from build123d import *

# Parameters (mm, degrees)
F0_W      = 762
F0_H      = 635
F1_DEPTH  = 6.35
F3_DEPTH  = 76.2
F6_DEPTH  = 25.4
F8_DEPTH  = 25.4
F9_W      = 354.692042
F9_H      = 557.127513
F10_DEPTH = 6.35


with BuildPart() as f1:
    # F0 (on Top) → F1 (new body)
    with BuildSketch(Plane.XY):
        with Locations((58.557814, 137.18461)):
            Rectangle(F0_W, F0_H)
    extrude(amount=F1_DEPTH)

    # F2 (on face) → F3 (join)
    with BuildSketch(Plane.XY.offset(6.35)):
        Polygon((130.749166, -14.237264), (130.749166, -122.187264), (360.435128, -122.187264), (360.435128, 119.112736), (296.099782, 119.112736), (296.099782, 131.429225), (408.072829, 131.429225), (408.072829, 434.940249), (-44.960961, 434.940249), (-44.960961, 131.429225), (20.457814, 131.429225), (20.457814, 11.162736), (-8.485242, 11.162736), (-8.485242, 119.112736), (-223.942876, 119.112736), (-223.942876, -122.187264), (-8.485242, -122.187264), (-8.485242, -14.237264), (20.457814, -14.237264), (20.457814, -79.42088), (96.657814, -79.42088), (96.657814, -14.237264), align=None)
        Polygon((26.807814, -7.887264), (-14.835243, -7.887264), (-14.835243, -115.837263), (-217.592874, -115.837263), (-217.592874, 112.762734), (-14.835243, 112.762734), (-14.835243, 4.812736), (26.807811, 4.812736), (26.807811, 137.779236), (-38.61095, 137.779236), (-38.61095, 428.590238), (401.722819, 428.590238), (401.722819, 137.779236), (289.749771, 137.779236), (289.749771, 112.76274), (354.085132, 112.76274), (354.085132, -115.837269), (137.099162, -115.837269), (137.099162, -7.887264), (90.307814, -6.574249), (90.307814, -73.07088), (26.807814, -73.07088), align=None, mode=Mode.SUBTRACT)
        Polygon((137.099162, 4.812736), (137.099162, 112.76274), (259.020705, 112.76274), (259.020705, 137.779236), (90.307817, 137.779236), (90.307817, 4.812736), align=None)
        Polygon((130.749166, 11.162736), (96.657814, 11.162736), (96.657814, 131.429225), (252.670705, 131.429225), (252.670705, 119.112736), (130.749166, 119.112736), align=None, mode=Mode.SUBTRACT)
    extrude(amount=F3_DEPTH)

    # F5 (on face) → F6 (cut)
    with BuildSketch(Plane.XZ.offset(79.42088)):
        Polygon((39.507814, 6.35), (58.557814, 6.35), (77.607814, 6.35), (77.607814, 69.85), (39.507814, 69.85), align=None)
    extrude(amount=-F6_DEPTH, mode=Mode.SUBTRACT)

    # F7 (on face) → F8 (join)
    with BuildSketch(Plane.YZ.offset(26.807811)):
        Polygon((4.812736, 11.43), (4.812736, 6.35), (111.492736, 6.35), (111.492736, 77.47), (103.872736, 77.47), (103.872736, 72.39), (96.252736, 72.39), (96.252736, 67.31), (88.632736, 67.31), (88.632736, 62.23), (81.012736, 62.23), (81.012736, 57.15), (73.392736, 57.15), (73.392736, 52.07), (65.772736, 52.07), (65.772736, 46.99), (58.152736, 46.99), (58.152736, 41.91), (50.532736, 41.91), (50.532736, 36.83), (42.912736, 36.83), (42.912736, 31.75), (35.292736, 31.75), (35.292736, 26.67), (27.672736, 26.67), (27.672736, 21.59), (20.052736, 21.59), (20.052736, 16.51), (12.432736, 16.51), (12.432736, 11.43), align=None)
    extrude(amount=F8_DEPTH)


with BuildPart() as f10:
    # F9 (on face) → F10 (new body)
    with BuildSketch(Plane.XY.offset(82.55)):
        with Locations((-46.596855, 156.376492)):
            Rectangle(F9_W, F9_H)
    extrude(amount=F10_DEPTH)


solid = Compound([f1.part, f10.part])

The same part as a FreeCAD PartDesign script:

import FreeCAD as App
import Part
import Sketcher
from FreeCAD import Vector
Q = App.Units.Quantity

doc = App.newDocument("Part")
body = doc.addObject("PartDesign::Body", "Body")

# Sketch on XY plane
sketch1 = body.newObject("Sketcher::SketchObject", "Sketch")
sketch1.AttachmentSupport = (doc.getObject("XY_Plane"), [""])
sketch1.MapMode = "FlatFace"
sketch1.addGeometry([
    Part.LineSegment(Vector(-322, 455, 0), Vector(-322, -180, 0)),
    Part.LineSegment(Vector(-322, -180, 0), Vector(440, -180, 0)),
    Part.LineSegment(Vector(440, -180, 0), Vector(440, 455, 0)),
    Part.LineSegment(Vector(440, 455, 0), Vector(-322, 455, 0)),
], False)
sketch1.addConstraint([
    Sketcher.Constraint("Coincident", 0, 2, 1, 1),
    Sketcher.Constraint("Coincident", 1, 2, 2, 1),
    Sketcher.Constraint("Coincident", 2, 2, 3, 1),
    Sketcher.Constraint("Coincident", 3, 2, 0, 1),
    Sketcher.Constraint("Vertical", 0),
    Sketcher.Constraint("Horizontal", 1),
    Sketcher.Constraint("Vertical", 2),
    Sketcher.Constraint("Horizontal", 3),
    Sketcher.Constraint("DistanceX", 1, 1, 1, 2, Q("30 in")),
    Sketcher.Constraint("DistanceY", 0, 2, 0, 1, Q("25 in")),
    Sketcher.Constraint("DistanceY", 0, 2, -1, 1, Q("180.31539 mm")),
    Sketcher.Constraint("DistanceX", 0, 2, -1, 1, Q("322.442186 mm")),
])
pad1 = body.newObject("PartDesign::Pad", "Pad")
pad1.Profile = sketch1
pad1.Length = Q("0.25 in")

# Sketch on XY plane
sketch2 = body.newObject("Sketcher::SketchObject", "Sketch001")
sketch2.AttachmentSupport = (doc.getObject("XY_Plane"), [""])
sketch2.MapMode = "FlatFace"
sketch2.AttachmentOffset = App.Placement(Vector(0, 0, 0.25 * 25.4), App.Rotation())
sketch2.addGeometry([
    Part.LineSegment(Vector(131, -14, 0), Vector(131, -122, 0)),  # 0
    Part.LineSegment(Vector(131, -122, 0), Vector(360, -122, 0)),  # 1
    Part.LineSegment(Vector(360, -122, 0), Vector(360, 119, 0)),  # 2
    Part.LineSegment(Vector(360, 119, 0), Vector(296, 119, 0)),  # 3
    Part.LineSegment(Vector(296, 119, 0), Vector(296, 131, 0)),  # 4
    Part.LineSegment(Vector(296, 131, 0), Vector(408, 131, 0)),  # 5
    Part.LineSegment(Vector(408, 131, 0), Vector(408, 435, 0)),  # 6
    Part.LineSegment(Vector(408, 435, 0), Vector(-45, 435, 0)),  # 7
    Part.LineSegment(Vector(-45, 435, 0), Vector(-45, 131, 0)),  # 8
    Part.LineSegment(Vector(-45, 131, 0), Vector(20, 131, 0)),  # 9
    Part.LineSegment(Vector(20, 131, 0), Vector(20, 11, 0)),  # 10
    Part.LineSegment(Vector(20, 11, 0), Vector(-8, 11, 0)),  # 11
    Part.LineSegment(Vector(-8, 11, 0), Vector(-8, 119, 0)),  # 12
    Part.LineSegment(Vector(-8, 119, 0), Vector(-224, 119, 0)),  # 13
    Part.LineSegment(Vector(-224, 119, 0), Vector(-224, -122, 0)),  # 14
    Part.LineSegment(Vector(-224, -122, 0), Vector(-8, -122, 0)),  # 15
    Part.LineSegment(Vector(-8, -122, 0), Vector(-8, -14, 0)),  # 16
    Part.LineSegment(Vector(-8, -14, 0), Vector(20, -14, 0)),  # 17
    Part.LineSegment(Vector(20, -14, 0), Vector(20, -79, 0)),  # 18
    Part.LineSegment(Vector(20, -79, 0), Vector(97, -79, 0)),  # 19
    Part.LineSegment(Vector(97, -79, 0), Vector(97, -14, 0)),  # 20
    Part.LineSegment(Vector(97, -14, 0), Vector(131, -14, 0)),  # 21
    Part.LineSegment(Vector(27, -73, 0), Vector(27, -8, 0)),  # 22
    Part.LineSegment(Vector(27, -8, 0), Vector(-15, -8, 0)),  # 23
    Part.LineSegment(Vector(-15, -8, 0), Vector(-15, -116, 0)),  # 24
    Part.LineSegment(Vector(-15, -116, 0), Vector(-218, -116, 0)),  # 25
    Part.LineSegment(Vector(-218, -116, 0), Vector(-218, 113, 0)),  # 26
    Part.LineSegment(Vector(-218, 113, 0), Vector(-15, 113, 0)),  # 27
    Part.LineSegment(Vector(-15, 113, 0), Vector(-15, 5, 0)),  # 28
    Part.LineSegment(Vector(-15, 5, 0), Vector(27, 5, 0)),  # 29
    Part.LineSegment(Vector(27, 5, 0), Vector(27, 138, 0)),  # 30
    Part.LineSegment(Vector(27, 138, 0), Vector(-39, 138, 0)),  # 31
    Part.LineSegment(Vector(-39, 138, 0), Vector(-39, 429, 0)),  # 32
    Part.LineSegment(Vector(-39, 429, 0), Vector(402, 429, 0)),  # 33
    Part.LineSegment(Vector(402, 429, 0), Vector(402, 138, 0)),  # 34
    Part.LineSegment(Vector(402, 138, 0), Vector(290, 138, 0)),  # 35
    Part.LineSegment(Vector(290, 138, 0), Vector(290, 113, 0)),  # 36
    Part.LineSegment(Vector(290, 113, 0), Vector(354, 113, 0)),  # 37
    Part.LineSegment(Vector(354, 113, 0), Vector(354, -116, 0)),  # 38
    Part.LineSegment(Vector(354, -116, 0), Vector(137, -116, 0)),  # 39
    Part.LineSegment(Vector(137, -116, 0), Vector(137, -8, 0)),  # 40
    Part.LineSegment(Vector(137, -8, 0), Vector(90, -7, 0)),  # 41
    Part.LineSegment(Vector(90, -7, 0), Vector(90, -73, 0)),  # 42
    Part.LineSegment(Vector(90, -73, 0), Vector(27, -73, 0)),  # 43
    Part.LineSegment(Vector(137, 5, 0), Vector(137, 113, 0)),  # 44
    Part.LineSegment(Vector(137, 113, 0), Vector(259, 113, 0)),  # 45
    Part.LineSegment(Vector(259, 113, 0), Vector(259, 138, 0)),  # 46
    Part.LineSegment(Vector(259, 138, 0), Vector(90, 138, 0)),  # 47
    Part.LineSegment(Vector(90, 138, 0), Vector(90, 5, 0)),  # 48
    Part.LineSegment(Vector(90, 5, 0), Vector(137, 5, 0)),  # 49
    Part.LineSegment(Vector(131, 119, 0), Vector(131, 11, 0)),  # 50
    Part.LineSegment(Vector(131, 11, 0), Vector(97, 11, 0)),  # 51
    Part.LineSegment(Vector(97, 11, 0), Vector(97, 131, 0)),  # 52
    Part.LineSegment(Vector(97, 131, 0), Vector(253, 131, 0)),  # 53
    Part.LineSegment(Vector(253, 131, 0), Vector(253, 119, 0)),  # 54
    Part.LineSegment(Vector(253, 119, 0), Vector(131, 119, 0)),  # 55
], False)
sketch2.addConstraint([
    Sketcher.Constraint("Coincident", 0, 2, 1, 1),
    Sketcher.Constraint("Coincident", 1, 2, 2, 1),
    Sketcher.Constraint("Coincident", 2, 2, 3, 1),
    Sketcher.Constraint("Coincident", 3, 2, 4, 1),
    Sketcher.Constraint("Coincident", 4, 2, 5, 1),
    Sketcher.Constraint("Coincident", 5, 2, 6, 1),
    Sketcher.Constraint("Coincident", 6, 2, 7, 1),
    Sketcher.Constraint("Coincident", 7, 2, 8, 1),
    Sketcher.Constraint("Coincident", 8, 2, 9, 1),
    Sketcher.Constraint("Coincident", 9, 2, 10, 1),
    Sketcher.Constraint("Coincident", 10, 2, 11, 1),
    Sketcher.Constraint("Coincident", 11, 2, 12, 1),
    Sketcher.Constraint("Coincident", 12, 2, 13, 1),
    Sketcher.Constraint("Coincident", 13, 2, 14, 1),
    Sketcher.Constraint("Coincident", 14, 2, 15, 1),
    Sketcher.Constraint("Coincident", 15, 2, 16, 1),
    Sketcher.Constraint("Coincident", 16, 2, 17, 1),
    Sketcher.Constraint("Coincident", 17, 2, 18, 1),
    Sketcher.Constraint("Coincident", 18, 2, 19, 1),
    Sketcher.Constraint("Coincident", 19, 2, 20, 1),
    Sketcher.Constraint("Coincident", 20, 2, 21, 1),
    Sketcher.Constraint("Coincident", 21, 2, 0, 1),
    Sketcher.Constraint("Coincident", 22, 2, 23, 1),
    Sketcher.Constraint("Coincident", 23, 2, 24, 1),
    Sketcher.Constraint("Coincident", 24, 2, 25, 1),
    Sketcher.Constraint("Coincident", 25, 2, 26, 1),
    Sketcher.Constraint("Coincident", 26, 2, 27, 1),
    Sketcher.Constraint("Coincident", 27, 2, 28, 1),
    Sketcher.Constraint("Coincident", 28, 2, 29, 1),
    Sketcher.Constraint("Coincident", 29, 2, 30, 1),
    Sketcher.Constraint("Coincident", 30, 2, 31, 1),
    Sketcher.Constraint("Coincident", 31, 2, 32, 1),
    Sketcher.Constraint("Coincident", 32, 2, 33, 1),
    Sketcher.Constraint("Coincident", 33, 2, 34, 1),
    Sketcher.Constraint("Coincident", 34, 2, 35, 1),
    Sketcher.Constraint("Coincident", 35, 2, 36, 1),
    Sketcher.Constraint("Coincident", 36, 2, 37, 1),
    Sketcher.Constraint("Coincident", 37, 2, 38, 1),
    Sketcher.Constraint("Coincident", 38, 2, 39, 1),
    Sketcher.Constraint("Coincident", 39, 2, 40, 1),
    Sketcher.Constraint("Coincident", 40, 2, 41, 1),
    Sketcher.Constraint("Coincident", 41, 2, 42, 1),
    Sketcher.Constraint("Coincident", 42, 2, 43, 1),
    Sketcher.Constraint("Coincident", 43, 2, 22, 1),
    Sketcher.Constraint("Coincident", 44, 2, 45, 1),
    Sketcher.Constraint("Coincident", 45, 2, 46, 1),
    Sketcher.Constraint("Coincident", 46, 2, 47, 1),
    Sketcher.Constraint("Coincident", 47, 2, 48, 1),
    Sketcher.Constraint("Coincident", 48, 2, 49, 1),
    Sketcher.Constraint("Coincident", 49, 2, 44, 1),
    Sketcher.Constraint("Coincident", 50, 2, 51, 1),
    Sketcher.Constraint("Coincident", 51, 2, 52, 1),
    Sketcher.Constraint("Coincident", 52, 2, 53, 1),
    Sketcher.Constraint("Coincident", 53, 2, 54, 1),
    Sketcher.Constraint("Coincident", 54, 2, 55, 1),
    Sketcher.Constraint("Coincident", 55, 2, 50, 1),
    Sketcher.Constraint("Vertical", 0),
    Sketcher.Constraint("Horizontal", 1),
    Sketcher.Constraint("Vertical", 2),
    Sketcher.Constraint("Horizontal", 3),
    Sketcher.Constraint("Vertical", 4),
    Sketcher.Constraint("Horizontal", 5),
    Sketcher.Constraint("Vertical", 6),
    Sketcher.Constraint("Horizontal", 7),
    Sketcher.Constraint("Vertical", 8),
    Sketcher.Constraint("Horizontal", 9),
    Sketcher.Constraint("Vertical", 10),
    Sketcher.Constraint("Horizontal", 11),
    Sketcher.Constraint("Vertical", 12),
    Sketcher.Constraint("Horizontal", 13),
    Sketcher.Constraint("Vertical", 14),
    Sketcher.Constraint("Horizontal", 15),
    Sketcher.Constraint("Vertical", 16),
    Sketcher.Constraint("Horizontal", 17),
    Sketcher.Constraint("Vertical", 18),
    Sketcher.Constraint("Horizontal", 19),
    Sketcher.Constraint("Vertical", 20),
    Sketcher.Constraint("Horizontal", 21),
    Sketcher.Constraint("Vertical", 22),
    Sketcher.Constraint("Horizontal", 23),
    Sketcher.Constraint("Vertical", 24),
    Sketcher.Constraint("Horizontal", 25),
    Sketcher.Constraint("Vertical", 26),
    Sketcher.Constraint("Horizontal", 27),
    Sketcher.Constraint("Vertical", 28),
    Sketcher.Constraint("Horizontal", 29),
    Sketcher.Constraint("Vertical", 30),
    Sketcher.Constraint("Horizontal", 31),
    Sketcher.Constraint("Vertical", 32),
    Sketcher.Constraint("Horizontal", 33),
    Sketcher.Constraint("Vertical", 34),
    Sketcher.Constraint("Horizontal", 35),
    Sketcher.Constraint("Vertical", 36),
    Sketcher.Constraint("Horizontal", 37),
    Sketcher.Constraint("Vertical", 38),
    Sketcher.Constraint("Horizontal", 39),
    Sketcher.Constraint("Vertical", 40),
    Sketcher.Constraint("Vertical", 42),
    Sketcher.Constraint("Horizontal", 43),
    Sketcher.Constraint("Vertical", 44),
    Sketcher.Constraint("Horizontal", 45),
    Sketcher.Constraint("Vertical", 46),
    Sketcher.Constraint("Horizontal", 47),
    Sketcher.Constraint("Vertical", 48),
    Sketcher.Constraint("Horizontal", 49),
    Sketcher.Constraint("Vertical", 50),
    Sketcher.Constraint("Horizontal", 51),
    Sketcher.Constraint("Vertical", 52),
    Sketcher.Constraint("Horizontal", 53),
    Sketcher.Constraint("Vertical", 54),
    Sketcher.Constraint("Horizontal", 55),
    Sketcher.Constraint("Horizontal", 5, 2, 8, 2),
    Sketcher.Constraint("Horizontal", 3, 2, 12, 2),
    Sketcher.Constraint("Horizontal", 1, 2, 14, 2),
    Sketcher.Constraint("Horizontal", 17, 2, 20, 2),
    Sketcher.Constraint("Horizontal", 31, 2, 34, 2),
    Sketcher.Constraint("Horizontal", 23, 2, 40, 2),
    Sketcher.Constraint("Horizontal", 37, 2, 44, 2),
    Sketcher.Constraint("Horizontal", 35, 2, 46, 2),
    Sketcher.Constraint("Horizontal", 29, 2, 48, 2),
    Sketcher.Constraint("Horizontal", 11, 2, 50, 2),
    Sketcher.Constraint("Horizontal", 9, 2, 52, 2),
    Sketcher.Constraint("Horizontal", 13, 2, 54, 2),
    Sketcher.Constraint("Vertical", 12, 2, 15, 2),
    Sketcher.Constraint("Vertical", 10, 2, 17, 2),
    Sketcher.Constraint("Vertical", 24, 2, 27, 2),
    Sketcher.Constraint("Vertical", 40, 2, 44, 2),
    Sketcher.Constraint("Vertical", 21, 2, 50, 2),
    Sketcher.Constraint("Vertical", 20, 2, 51, 2),
    Sketcher.Constraint("Equal", 5, 35),
    Sketcher.Constraint("Equal", 0, 12),
    Sketcher.Constraint("Equal", 20, 22),
    Sketcher.Constraint("Equal", 16, 24),
    Sketcher.Constraint("Equal", 24, 28),
    Sketcher.Constraint("Equal", 40, 44),
    Sketcher.Constraint("DistanceX", 19, 1, 19, 2, Q("3 in")),
    Sketcher.Constraint("DistanceY", 26, 1, 26, 2, Q("8.9999999 in")),
    Sketcher.Constraint("DistanceX", 43, 2, 43, 1, Q("2.5 in")),
    Sketcher.Constraint("DistanceY", 2, 1, 2, 2, Q("9.5 in")),
    Sketcher.Constraint("DistanceY", 16, 2, 11, 2, Q("1 in")),
    Sketcher.Constraint("DistanceY", 24, 2, 16, 2, Q("4 in")),
    Sketcher.Constraint("DistanceY", 39, 2, 21, 2, Q("4.0000002 in")),
    Sketcher.Constraint("DistanceX", 29, 2, 41, 2, Q("2.5000001 in")),
    Sketcher.Constraint("DistanceX", 17, 2, 22, 2, Q("0.25 in")),
    Sketcher.Constraint("DistanceX", 23, 2, 16, 2, Q("0.25 in")),
    Sketcher.Constraint("DistanceX", 14, 2, 25, 2, Q("0.2500001 in")),
    Sketcher.Constraint("DistanceX", 37, 2, 2, 2, Q("0.2499998 in")),
    Sketcher.Constraint("DistanceX", 0, 2, 39, 2, Q("0.2499998 in")),
    Sketcher.Constraint("DistanceX", 9, 2, 47, 2, Q("2.7500001 in")),
    Sketcher.Constraint("DistanceX", 53, 2, 46, 2, Q("0.25 in")),
    Sketcher.Constraint("DistanceY", 30, 1, 30, 2, Q("132.9665 mm")),
    Sketcher.Constraint("DistanceX", 2, 2, 5, 2, Q("1.8755 in")),
    Sketcher.Constraint("DistanceX", 7, 2, 7, 1, Q("453.03379 mm")),
    Sketcher.Constraint("DistanceX", 25, 2, 25, 1, Q("202.757631 mm")),
    Sketcher.Constraint("DistanceX", 31, 2, 31, 1, Q("65.418761 mm")),
    Sketcher.Constraint("DistanceX", 33, 1, 33, 2, Q("440.333769 mm")),
    Sketcher.Constraint("DistanceX", 35, 2, 35, 1, Q("111.973048 mm")),
    Sketcher.Constraint("DistanceX", 37, 1, 37, 2, Q("64.335361 mm")),
    Sketcher.Constraint("DistanceX", 39, 2, 39, 1, Q("216.98597 mm")),
    Sketcher.Constraint("DistanceX", 47, 2, 47, 1, Q("168.712888 mm")),
    Sketcher.Constraint("DistanceY", 4, 1, 4, 2, Q("12.316489 mm")),
    Sketcher.Constraint("DistanceY", 42, 2, 42, 1, Q("66.496631 mm")),
    Sketcher.Constraint("DistanceY", 2, 2, 33, 2, Q("309.477502 mm")),
    Sketcher.Constraint("DistanceX", 11, 2, 11, 1, Q("28.943056 mm")),
    Sketcher.Constraint("DistanceY", 6, 1, 6, 2, Q("303.511024 mm")),
    Sketcher.Constraint("DistanceY", 18, 2, 18, 1, Q("65.183616 mm")),
    Sketcher.Constraint("DistanceX", -1, 1, 1, 2, Q("360.435128 mm")),
    Sketcher.Constraint("DistanceY", -1, 1, 6, 2, Q("434.940249 mm")),
])
pad2 = body.newObject("PartDesign::Pad", "Pad001")
pad2.Profile = sketch2
pad2.Length = Q("3 in")

# Sketch on XZ plane
sketch3 = body.newObject("Sketcher::SketchObject", "Sketch002")
sketch3.AttachmentSupport = (doc.getObject("XZ_Plane"), [""])
sketch3.MapMode = "FlatFace"
sketch3.AttachmentOffset = App.Placement(Vector(0, 0, 79.42088), App.Rotation())
sketch3.addGeometry([
    Part.LineSegment(Vector(40, 6, 0), Vector(78, 6, 0)),
    Part.LineSegment(Vector(78, 6, 0), Vector(78, 70, 0)),
    Part.LineSegment(Vector(78, 70, 0), Vector(40, 70, 0)),
    Part.LineSegment(Vector(40, 70, 0), Vector(40, 6, 0)),
], False)
sketch3.addConstraint([
    Sketcher.Constraint("Coincident", 0, 2, 1, 1),
    Sketcher.Constraint("Coincident", 1, 2, 2, 1),
    Sketcher.Constraint("Coincident", 2, 2, 3, 1),
    Sketcher.Constraint("Coincident", 3, 2, 0, 1),
    Sketcher.Constraint("Horizontal", 0),
    Sketcher.Constraint("Vertical", 1),
    Sketcher.Constraint("Horizontal", 2),
    Sketcher.Constraint("Vertical", 3),
    Sketcher.Constraint("DistanceX", 0, 1, 0, 2, Q("1.5 in")),
    Sketcher.Constraint("DistanceY", 1, 1, 1, 2, Q("2.5 in")),
    Sketcher.Constraint("DistanceY", -1, 1, 0, 2, Q("0.25 in")),
    Sketcher.Constraint("DistanceX", -1, 1, 0, 2, Q("77.607814 mm")),
])
pocket1 = body.newObject("PartDesign::Pocket", "Pocket")
pocket1.Profile = sketch3
pocket1.Length = Q("1 in")

# Sketch on YZ plane
sketch4 = body.newObject("Sketcher::SketchObject", "Sketch003")
sketch4.AttachmentSupport = (doc.getObject("YZ_Plane"), [""])
sketch4.MapMode = "FlatFace"
sketch4.AttachmentOffset = App.Placement(Vector(0, 0, 26.807811), App.Rotation())
sketch4.addGeometry([
    Part.LineSegment(Vector(5, 11, 0), Vector(5, 6, 0)),  # 0
    Part.LineSegment(Vector(5, 6, 0), Vector(111, 6, 0)),  # 1
    Part.LineSegment(Vector(111, 6, 0), Vector(111, 77, 0)),  # 2
    Part.LineSegment(Vector(111, 77, 0), Vector(104, 77, 0)),  # 3
    Part.LineSegment(Vector(104, 77, 0), Vector(104, 72, 0)),  # 4
    Part.LineSegment(Vector(104, 72, 0), Vector(96, 72, 0)),  # 5
    Part.LineSegment(Vector(96, 72, 0), Vector(96, 67, 0)),  # 6
    Part.LineSegment(Vector(96, 67, 0), Vector(89, 67, 0)),  # 7
    Part.LineSegment(Vector(89, 67, 0), Vector(89, 62, 0)),  # 8
    Part.LineSegment(Vector(89, 62, 0), Vector(81, 62, 0)),  # 9
    Part.LineSegment(Vector(81, 62, 0), Vector(81, 57, 0)),  # 10
    Part.LineSegment(Vector(81, 57, 0), Vector(73, 57, 0)),  # 11
    Part.LineSegment(Vector(73, 57, 0), Vector(73, 52, 0)),  # 12
    Part.LineSegment(Vector(73, 52, 0), Vector(66, 52, 0)),  # 13
    Part.LineSegment(Vector(66, 52, 0), Vector(66, 47, 0)),  # 14
    Part.LineSegment(Vector(66, 47, 0), Vector(58, 47, 0)),  # 15
    Part.LineSegment(Vector(58, 47, 0), Vector(58, 42, 0)),  # 16
    Part.LineSegment(Vector(58, 42, 0), Vector(51, 42, 0)),  # 17
    Part.LineSegment(Vector(51, 42, 0), Vector(51, 37, 0)),  # 18
    Part.LineSegment(Vector(51, 37, 0), Vector(43, 37, 0)),  # 19
    Part.LineSegment(Vector(43, 37, 0), Vector(43, 32, 0)),  # 20
    Part.LineSegment(Vector(43, 32, 0), Vector(35, 32, 0)),  # 21
    Part.LineSegment(Vector(35, 32, 0), Vector(35, 27, 0)),  # 22
    Part.LineSegment(Vector(35, 27, 0), Vector(28, 27, 0)),  # 23
    Part.LineSegment(Vector(28, 27, 0), Vector(28, 22, 0)),  # 24
    Part.LineSegment(Vector(28, 22, 0), Vector(20, 22, 0)),  # 25
    Part.LineSegment(Vector(20, 22, 0), Vector(20, 17, 0)),  # 26
    Part.LineSegment(Vector(20, 17, 0), Vector(12, 17, 0)),  # 27
    Part.LineSegment(Vector(12, 17, 0), Vector(12, 11, 0)),  # 28
    Part.LineSegment(Vector(12, 11, 0), Vector(5, 11, 0)),  # 29
], False)
sketch4.addConstraint([
    Sketcher.Constraint("Coincident", 0, 2, 1, 1),
    Sketcher.Constraint("Coincident", 1, 2, 2, 1),
    Sketcher.Constraint("Coincident", 2, 2, 3, 1),
    Sketcher.Constraint("Coincident", 3, 2, 4, 1),
    Sketcher.Constraint("Coincident", 4, 2, 5, 1),
    Sketcher.Constraint("Coincident", 5, 2, 6, 1),
    Sketcher.Constraint("Coincident", 6, 2, 7, 1),
    Sketcher.Constraint("Coincident", 7, 2, 8, 1),
    Sketcher.Constraint("Coincident", 8, 2, 9, 1),
    Sketcher.Constraint("Coincident", 9, 2, 10, 1),
    Sketcher.Constraint("Coincident", 10, 2, 11, 1),
    Sketcher.Constraint("Coincident", 11, 2, 12, 1),
    Sketcher.Constraint("Coincident", 12, 2, 13, 1),
    Sketcher.Constraint("Coincident", 13, 2, 14, 1),
    Sketcher.Constraint("Coincident", 14, 2, 15, 1),
    Sketcher.Constraint("Coincident", 15, 2, 16, 1),
    Sketcher.Constraint("Coincident", 16, 2, 17, 1),
    Sketcher.Constraint("Coincident", 17, 2, 18, 1),
    Sketcher.Constraint("Coincident", 18, 2, 19, 1),
    Sketcher.Constraint("Coincident", 19, 2, 20, 1),
    Sketcher.Constraint("Coincident", 20, 2, 21, 1),
    Sketcher.Constraint("Coincident", 21, 2, 22, 1),
    Sketcher.Constraint("Coincident", 22, 2, 23, 1),
    Sketcher.Constraint("Coincident", 23, 2, 24, 1),
    Sketcher.Constraint("Coincident", 24, 2, 25, 1),
    Sketcher.Constraint("Coincident", 25, 2, 26, 1),
    Sketcher.Constraint("Coincident", 26, 2, 27, 1),
    Sketcher.Constraint("Coincident", 27, 2, 28, 1),
    Sketcher.Constraint("Coincident", 28, 2, 29, 1),
    Sketcher.Constraint("Coincident", 29, 2, 0, 1),
    Sketcher.Constraint("Vertical", 0),
    Sketcher.Constraint("Horizontal", 1),
    Sketcher.Constraint("Vertical", 2),
    Sketcher.Constraint("Horizontal", 3),
    Sketcher.Constraint("Vertical", 4),
    Sketcher.Constraint("Horizontal", 5),
    Sketcher.Constraint("Vertical", 6),
    Sketcher.Constraint("Horizontal", 7),
    Sketcher.Constraint("Vertical", 8),
    Sketcher.Constraint("Horizontal", 9),
    Sketcher.Constraint("Vertical", 10),
    Sketcher.Constraint("Horizontal", 11),
    Sketcher.Constraint("Vertical", 12),
    Sketcher.Constraint("Horizontal", 13),
    Sketcher.Constraint("Vertical", 14),
    Sketcher.Constraint("Horizontal", 15),
    Sketcher.Constraint("Vertical", 16),
    Sketcher.Constraint("Horizontal", 17),
    Sketcher.Constraint("Vertical", 18),
    Sketcher.Constraint("Horizontal", 19),
    Sketcher.Constraint("Vertical", 20),
    Sketcher.Constraint("Horizontal", 21),
    Sketcher.Constraint("Vertical", 22),
    Sketcher.Constraint("Horizontal", 23),
    Sketcher.Constraint("Vertical", 24),
    Sketcher.Constraint("Horizontal", 25),
    Sketcher.Constraint("Vertical", 26),
    Sketcher.Constraint("Horizontal", 27),
    Sketcher.Constraint("Vertical", 28),
    Sketcher.Constraint("Horizontal", 29),
    Sketcher.Constraint("Equal", 3, 5),
    Sketcher.Constraint("Equal", 5, 7),
    Sketcher.Constraint("Equal", 7, 9),
    Sketcher.Constraint("Equal", 9, 11),
    Sketcher.Constraint("Equal", 11, 13),
    Sketcher.Constraint("Equal", 13, 15),
    Sketcher.Constraint("Equal", 15, 17),
    Sketcher.Constraint("Equal", 17, 19),
    Sketcher.Constraint("Equal", 19, 21),
    Sketcher.Constraint("Equal", 21, 23),
    Sketcher.Constraint("Equal", 23, 25),
    Sketcher.Constraint("Equal", 25, 27),
    Sketcher.Constraint("Equal", 27, 29),
    Sketcher.Constraint("Equal", 0, 4),
    Sketcher.Constraint("Equal", 4, 6),
    Sketcher.Constraint("Equal", 6, 8),
    Sketcher.Constraint("Equal", 8, 10),
    Sketcher.Constraint("Equal", 10, 12),
    Sketcher.Constraint("Equal", 12, 14),
    Sketcher.Constraint("Equal", 14, 16),
    Sketcher.Constraint("Equal", 16, 18),
    Sketcher.Constraint("Equal", 18, 20),
    Sketcher.Constraint("Equal", 20, 22),
    Sketcher.Constraint("Equal", 22, 24),
    Sketcher.Constraint("Equal", 24, 26),
    Sketcher.Constraint("Equal", 26, 28),
    Sketcher.Constraint("DistanceX", 1, 1, 1, 2, Q("4.2 in")),
    Sketcher.Constraint("DistanceY", 0, 2, 0, 1, Q("0.2 in")),
    Sketcher.Constraint("DistanceY", -1, 1, 0, 2, Q("0.25 in")),
    Sketcher.Constraint("DistanceX", -1, 1, 0, 2, Q("4.812736 mm")),
])
pad3 = body.newObject("PartDesign::Pad", "Pad002")
pad3.Profile = sketch4
pad3.Length = Q("1 in")
body2 = doc.addObject("PartDesign::Body", "Body001")

# Sketch on XY plane
sketch5 = body2.newObject("Sketcher::SketchObject", "Sketch004")
sketch5.AttachmentSupport = (doc.getObject("XY_Plane001"), [""])
sketch5.MapMode = "FlatFace"
sketch5.AttachmentOffset = App.Placement(Vector(0, 0, 3.25 * 25.4), App.Rotation())
sketch5.addGeometry([
    Part.LineSegment(Vector(-224, 435, 0), Vector(-224, -122, 0)),
    Part.LineSegment(Vector(-224, -122, 0), Vector(131, -122, 0)),
    Part.LineSegment(Vector(131, -122, 0), Vector(131, 435, 0)),
    Part.LineSegment(Vector(131, 435, 0), Vector(-224, 435, 0)),
], False)
sketch5.addConstraint([
    Sketcher.Constraint("Coincident", 0, 2, 1, 1),
    Sketcher.Constraint("Coincident", 1, 2, 2, 1),
    Sketcher.Constraint("Coincident", 2, 2, 3, 1),
    Sketcher.Constraint("Coincident", 3, 2, 0, 1),
    Sketcher.Constraint("Vertical", 0),
    Sketcher.Constraint("Horizontal", 1),
    Sketcher.Constraint("Vertical", 2),
    Sketcher.Constraint("Horizontal", 3),
    Sketcher.Constraint("DistanceX", 1, 1, 1, 2, Q("354.692042 mm")),
    Sketcher.Constraint("DistanceY", 0, 2, 0, 1, Q("557.127513 mm")),
    Sketcher.Constraint("DistanceY", -1, 1, 2, 2, Q("434.940248 mm")),
    Sketcher.Constraint("DistanceX", 0, 2, -1, 1, Q("223.942876 mm")),
])
pad4 = body2.newObject("PartDesign::Pad", "Pad003")
pad4.Profile = sketch5
pad4.Length = Q("0.25 in")

doc.recompute()
